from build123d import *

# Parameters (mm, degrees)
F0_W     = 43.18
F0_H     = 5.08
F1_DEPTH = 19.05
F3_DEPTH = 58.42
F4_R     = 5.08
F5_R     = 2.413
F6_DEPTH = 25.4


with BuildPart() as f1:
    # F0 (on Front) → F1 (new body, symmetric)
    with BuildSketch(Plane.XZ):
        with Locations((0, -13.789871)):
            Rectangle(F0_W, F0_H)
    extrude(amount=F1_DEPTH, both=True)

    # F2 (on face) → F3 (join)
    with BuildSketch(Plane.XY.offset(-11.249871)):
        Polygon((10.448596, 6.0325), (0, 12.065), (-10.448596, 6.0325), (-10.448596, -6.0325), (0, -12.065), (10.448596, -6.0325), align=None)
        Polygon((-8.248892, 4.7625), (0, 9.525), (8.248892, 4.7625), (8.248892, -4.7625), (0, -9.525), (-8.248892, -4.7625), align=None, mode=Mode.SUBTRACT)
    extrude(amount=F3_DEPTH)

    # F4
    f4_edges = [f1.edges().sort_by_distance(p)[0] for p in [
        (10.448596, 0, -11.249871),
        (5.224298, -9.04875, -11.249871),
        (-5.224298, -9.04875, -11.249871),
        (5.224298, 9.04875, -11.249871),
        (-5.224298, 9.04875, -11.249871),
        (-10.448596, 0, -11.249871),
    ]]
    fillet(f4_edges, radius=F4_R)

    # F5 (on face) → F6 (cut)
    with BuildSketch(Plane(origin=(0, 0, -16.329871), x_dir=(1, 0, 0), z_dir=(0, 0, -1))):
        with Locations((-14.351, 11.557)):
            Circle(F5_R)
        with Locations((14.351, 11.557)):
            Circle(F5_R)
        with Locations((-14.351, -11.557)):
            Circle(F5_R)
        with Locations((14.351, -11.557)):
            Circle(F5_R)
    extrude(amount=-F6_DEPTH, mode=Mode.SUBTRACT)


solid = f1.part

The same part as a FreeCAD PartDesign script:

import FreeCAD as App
import Part
import Sketcher

V = App.Vector
Q = App.Units.Quantity


def edges_at(feature, points):
    """Names of the edges that pass closest to the given points."""
    edges = feature.Shape.Edges
    near = lambda p: min(range(len(edges)), key=lambda i: edges[i].distToShape(Part.Vertex(*p))[0])
    return sorted({f"Edge{near(p) + 1}" for p in points})


def add_polygon(sketch, points):
    """Adds a closed chain of lines whose ends are joined by coincident constraints."""
    first, n = sketch.GeometryCount, len(points)
    for a, b in zip(points, points[1:] + points[:1]):
        sketch.addGeometry(Part.LineSegment(App.Vector(*a, 0), App.Vector(*b, 0)), False)
    for i in range(n):
        sketch.addConstraint(Sketcher.Constraint("Coincident", first + i, 2, first + (i + 1) % n, 1))

doc = App.newDocument("Part")
body = doc.addObject("PartDesign::Body", "Body")

# Sketch on XZ plane
sketch1 = doc.addObject("Sketcher::SketchObject", "Sketch")
body.addObject(sketch1)
sketch1.AttachmentSupport = (doc.XZ_Plane, [""])
sketch1.MapMode = "FlatFace"
add_polygon(sketch1, [(-21.59, -11.249871), (-21.59, -16.329871), (21.59, -16.329871), (21.59, -11.249871)])  # lines 0-3
sketch1.addConstraint([
    Sketcher.Constraint("Vertical", 0),
    Sketcher.Constraint("Horizontal", 1),
    Sketcher.Constraint("Vertical", 2),
    Sketcher.Constraint("Horizontal", 3),
    Sketcher.Constraint("DistanceX", 1, 1, 1, 2, Q("1.7 in")),
    Sketcher.Constraint("DistanceY", 0, 2, 0, 1, Q("0.2 in")),
    Sketcher.Constraint("DistanceX", 0, 2, -1, 1, Q("0.85 in")),
    Sketcher.Constraint("DistanceY", 0, 2, -1, 1, Q("16.329871 mm")),
])
pad1 = doc.addObject("PartDesign::Pad", "Pad")
body.addObject(pad1)
pad1.Profile = sketch1
pad1.Length = Q("1.5 in")
pad1.Midplane = True

# Sketch on XY plane
sketch2 = doc.addObject("Sketcher::SketchObject", "Sketch001")
body.addObject(sketch2)
sketch2.AttachmentSupport = (doc.XY_Plane, [""])
sketch2.MapMode = "FlatFace"
sketch2.AttachmentOffset = App.Placement(V(0, 0, -11.249871), App.Rotation())
add_polygon(sketch2, [(10.448596, 6.0325), (0, 12.065), (-10.448596, 6.0325), (-10.448596, -6.0325), (0, -12.065), (10.448596, -6.0325)])  # lines 0-5
add_polygon(sketch2, [(-8.248892, -4.7625), (-8.248892, 4.7625), (0, 9.525), (8.248892, 4.7625), (8.248892, -4.7625), (0, -9.525)])  # lines 6-11
sketch2.addConstraint([
    Sketcher.Constraint("Vertical", 2),
    Sketcher.Constraint("Vertical", 5),
    Sketcher.Constraint("Vertical", 6),
    Sketcher.Constraint("Vertical", 9),
    Sketcher.Constraint("Symmetric", 0, 2, 3, 2, -1, 1),
    Sketcher.Constraint("Symmetric", 1, 2, 4, 2, -1, 1),
    Sketcher.Constraint("Symmetric", 6, 2, 9, 2, -1, 1),
    Sketcher.Constraint("Symmetric", 7, 2, 10, 2, -1, 1),
    Sketcher.Constraint("PointOnObject", 0, 2, -2),
    Sketcher.Constraint("PointOnObject", 7, 2, -2),
    Sketcher.Constraint("Parallel", 0, 3),
    Sketcher.Constraint("Parallel", 4, 7),
    Sketcher.Constraint("Parallel", 3, 8),
    Sketcher.Constraint("Parallel", 8, 11),
    Sketcher.Constraint("Horizontal", 2, 2, 4, 2),
    Sketcher.Constraint("Angle", 0, Q("149.999999 deg")),
    Sketcher.Constraint("DistanceY", 7, 2, 0, 2, Q("0.1 in")),
    Sketcher.Constraint("DistanceY", 2, 2, 2, 1, Q("0.475 in")),
    Sketcher.Constraint("DistanceY", 6, 1, 6, 2, Q("0.375 in")),
    Sketcher.Constraint("DistanceY", 3, 2, 0, 2, Q("0.95 in")),
])
pad2 = doc.addObject("PartDesign::Pad", "Pad001")
body.addObject(pad2)
pad2.Profile = sketch2
pad2.Length = Q("2.3 in")
doc.recompute()

fillet = doc.addObject("PartDesign::Fillet", "Fillet")
body.addObject(fillet)
fillet.Base = (pad2, edges_at(pad2, [
    (10.449, 0, -11.25),
    (5.224, -9.049, -11.25),
    (-5.224, -9.049, -11.25),
    (5.224, 9.049, -11.25),
    (-5.224, 9.049, -11.25),
    (-10.449, 0, -11.25),
]))
fillet.Radius = Q("0.2 in")

# Sketch on XY plane
sketch3 = doc.addObject("Sketcher::SketchObject", "Sketch002")
body.addObject(sketch3)
sketch3.AttachmentSupport = (doc.XY_Plane, [""])
sketch3.MapMode = "FlatFace"
sketch3.AttachmentOffset = App.Placement(V(0, 0, -16.329871), App.Rotation())
sketch3.addGeometry([
    Part.Circle(V(-14.351, -11.557, 0), V(0, 0, 1), 2.413),
    Part.Circle(V(14.351, -11.557, 0), V(0, 0, 1), 2.413),
    Part.Circle(V(-14.351, 11.557, 0), V(0, 0, 1), 2.413),
    Part.Circle(V(14.351, 11.557, 0), V(0, 0, 1), 2.413),
], False)
sketch3.addConstraint([
    Sketcher.Constraint("Equal", 0, 1),
    Sketcher.Constraint("Equal", 1, 2),
    Sketcher.Constraint("Equal", 2, 3),
    Sketcher.Constraint("Symmetric", 1, 3, 2, 3, -1, 1),
    Sketcher.Constraint("Symmetric", 0, 3, 3, 3, -1, 1),
    Sketcher.Constraint("Symmetric", 0, 3, 1, 3, -2),
    Sketcher.Constraint("Diameter", 0, Q("0.19 in")),
    Sketcher.Constraint("DistanceX", 0, 3, 1, 3, Q("1.13 in")),
    Sketcher.Constraint("DistanceY", 0, 3, 2, 3, Q("0.91 in")),
])
pocket1 = doc.addObject("PartDesign::Pocket", "Pocket")
body.addObject(pocket1)
pocket1.Profile = sketch3
pocket1.Length = Q("1 in")
pocket1.Reversed = True

doc.recompute()
